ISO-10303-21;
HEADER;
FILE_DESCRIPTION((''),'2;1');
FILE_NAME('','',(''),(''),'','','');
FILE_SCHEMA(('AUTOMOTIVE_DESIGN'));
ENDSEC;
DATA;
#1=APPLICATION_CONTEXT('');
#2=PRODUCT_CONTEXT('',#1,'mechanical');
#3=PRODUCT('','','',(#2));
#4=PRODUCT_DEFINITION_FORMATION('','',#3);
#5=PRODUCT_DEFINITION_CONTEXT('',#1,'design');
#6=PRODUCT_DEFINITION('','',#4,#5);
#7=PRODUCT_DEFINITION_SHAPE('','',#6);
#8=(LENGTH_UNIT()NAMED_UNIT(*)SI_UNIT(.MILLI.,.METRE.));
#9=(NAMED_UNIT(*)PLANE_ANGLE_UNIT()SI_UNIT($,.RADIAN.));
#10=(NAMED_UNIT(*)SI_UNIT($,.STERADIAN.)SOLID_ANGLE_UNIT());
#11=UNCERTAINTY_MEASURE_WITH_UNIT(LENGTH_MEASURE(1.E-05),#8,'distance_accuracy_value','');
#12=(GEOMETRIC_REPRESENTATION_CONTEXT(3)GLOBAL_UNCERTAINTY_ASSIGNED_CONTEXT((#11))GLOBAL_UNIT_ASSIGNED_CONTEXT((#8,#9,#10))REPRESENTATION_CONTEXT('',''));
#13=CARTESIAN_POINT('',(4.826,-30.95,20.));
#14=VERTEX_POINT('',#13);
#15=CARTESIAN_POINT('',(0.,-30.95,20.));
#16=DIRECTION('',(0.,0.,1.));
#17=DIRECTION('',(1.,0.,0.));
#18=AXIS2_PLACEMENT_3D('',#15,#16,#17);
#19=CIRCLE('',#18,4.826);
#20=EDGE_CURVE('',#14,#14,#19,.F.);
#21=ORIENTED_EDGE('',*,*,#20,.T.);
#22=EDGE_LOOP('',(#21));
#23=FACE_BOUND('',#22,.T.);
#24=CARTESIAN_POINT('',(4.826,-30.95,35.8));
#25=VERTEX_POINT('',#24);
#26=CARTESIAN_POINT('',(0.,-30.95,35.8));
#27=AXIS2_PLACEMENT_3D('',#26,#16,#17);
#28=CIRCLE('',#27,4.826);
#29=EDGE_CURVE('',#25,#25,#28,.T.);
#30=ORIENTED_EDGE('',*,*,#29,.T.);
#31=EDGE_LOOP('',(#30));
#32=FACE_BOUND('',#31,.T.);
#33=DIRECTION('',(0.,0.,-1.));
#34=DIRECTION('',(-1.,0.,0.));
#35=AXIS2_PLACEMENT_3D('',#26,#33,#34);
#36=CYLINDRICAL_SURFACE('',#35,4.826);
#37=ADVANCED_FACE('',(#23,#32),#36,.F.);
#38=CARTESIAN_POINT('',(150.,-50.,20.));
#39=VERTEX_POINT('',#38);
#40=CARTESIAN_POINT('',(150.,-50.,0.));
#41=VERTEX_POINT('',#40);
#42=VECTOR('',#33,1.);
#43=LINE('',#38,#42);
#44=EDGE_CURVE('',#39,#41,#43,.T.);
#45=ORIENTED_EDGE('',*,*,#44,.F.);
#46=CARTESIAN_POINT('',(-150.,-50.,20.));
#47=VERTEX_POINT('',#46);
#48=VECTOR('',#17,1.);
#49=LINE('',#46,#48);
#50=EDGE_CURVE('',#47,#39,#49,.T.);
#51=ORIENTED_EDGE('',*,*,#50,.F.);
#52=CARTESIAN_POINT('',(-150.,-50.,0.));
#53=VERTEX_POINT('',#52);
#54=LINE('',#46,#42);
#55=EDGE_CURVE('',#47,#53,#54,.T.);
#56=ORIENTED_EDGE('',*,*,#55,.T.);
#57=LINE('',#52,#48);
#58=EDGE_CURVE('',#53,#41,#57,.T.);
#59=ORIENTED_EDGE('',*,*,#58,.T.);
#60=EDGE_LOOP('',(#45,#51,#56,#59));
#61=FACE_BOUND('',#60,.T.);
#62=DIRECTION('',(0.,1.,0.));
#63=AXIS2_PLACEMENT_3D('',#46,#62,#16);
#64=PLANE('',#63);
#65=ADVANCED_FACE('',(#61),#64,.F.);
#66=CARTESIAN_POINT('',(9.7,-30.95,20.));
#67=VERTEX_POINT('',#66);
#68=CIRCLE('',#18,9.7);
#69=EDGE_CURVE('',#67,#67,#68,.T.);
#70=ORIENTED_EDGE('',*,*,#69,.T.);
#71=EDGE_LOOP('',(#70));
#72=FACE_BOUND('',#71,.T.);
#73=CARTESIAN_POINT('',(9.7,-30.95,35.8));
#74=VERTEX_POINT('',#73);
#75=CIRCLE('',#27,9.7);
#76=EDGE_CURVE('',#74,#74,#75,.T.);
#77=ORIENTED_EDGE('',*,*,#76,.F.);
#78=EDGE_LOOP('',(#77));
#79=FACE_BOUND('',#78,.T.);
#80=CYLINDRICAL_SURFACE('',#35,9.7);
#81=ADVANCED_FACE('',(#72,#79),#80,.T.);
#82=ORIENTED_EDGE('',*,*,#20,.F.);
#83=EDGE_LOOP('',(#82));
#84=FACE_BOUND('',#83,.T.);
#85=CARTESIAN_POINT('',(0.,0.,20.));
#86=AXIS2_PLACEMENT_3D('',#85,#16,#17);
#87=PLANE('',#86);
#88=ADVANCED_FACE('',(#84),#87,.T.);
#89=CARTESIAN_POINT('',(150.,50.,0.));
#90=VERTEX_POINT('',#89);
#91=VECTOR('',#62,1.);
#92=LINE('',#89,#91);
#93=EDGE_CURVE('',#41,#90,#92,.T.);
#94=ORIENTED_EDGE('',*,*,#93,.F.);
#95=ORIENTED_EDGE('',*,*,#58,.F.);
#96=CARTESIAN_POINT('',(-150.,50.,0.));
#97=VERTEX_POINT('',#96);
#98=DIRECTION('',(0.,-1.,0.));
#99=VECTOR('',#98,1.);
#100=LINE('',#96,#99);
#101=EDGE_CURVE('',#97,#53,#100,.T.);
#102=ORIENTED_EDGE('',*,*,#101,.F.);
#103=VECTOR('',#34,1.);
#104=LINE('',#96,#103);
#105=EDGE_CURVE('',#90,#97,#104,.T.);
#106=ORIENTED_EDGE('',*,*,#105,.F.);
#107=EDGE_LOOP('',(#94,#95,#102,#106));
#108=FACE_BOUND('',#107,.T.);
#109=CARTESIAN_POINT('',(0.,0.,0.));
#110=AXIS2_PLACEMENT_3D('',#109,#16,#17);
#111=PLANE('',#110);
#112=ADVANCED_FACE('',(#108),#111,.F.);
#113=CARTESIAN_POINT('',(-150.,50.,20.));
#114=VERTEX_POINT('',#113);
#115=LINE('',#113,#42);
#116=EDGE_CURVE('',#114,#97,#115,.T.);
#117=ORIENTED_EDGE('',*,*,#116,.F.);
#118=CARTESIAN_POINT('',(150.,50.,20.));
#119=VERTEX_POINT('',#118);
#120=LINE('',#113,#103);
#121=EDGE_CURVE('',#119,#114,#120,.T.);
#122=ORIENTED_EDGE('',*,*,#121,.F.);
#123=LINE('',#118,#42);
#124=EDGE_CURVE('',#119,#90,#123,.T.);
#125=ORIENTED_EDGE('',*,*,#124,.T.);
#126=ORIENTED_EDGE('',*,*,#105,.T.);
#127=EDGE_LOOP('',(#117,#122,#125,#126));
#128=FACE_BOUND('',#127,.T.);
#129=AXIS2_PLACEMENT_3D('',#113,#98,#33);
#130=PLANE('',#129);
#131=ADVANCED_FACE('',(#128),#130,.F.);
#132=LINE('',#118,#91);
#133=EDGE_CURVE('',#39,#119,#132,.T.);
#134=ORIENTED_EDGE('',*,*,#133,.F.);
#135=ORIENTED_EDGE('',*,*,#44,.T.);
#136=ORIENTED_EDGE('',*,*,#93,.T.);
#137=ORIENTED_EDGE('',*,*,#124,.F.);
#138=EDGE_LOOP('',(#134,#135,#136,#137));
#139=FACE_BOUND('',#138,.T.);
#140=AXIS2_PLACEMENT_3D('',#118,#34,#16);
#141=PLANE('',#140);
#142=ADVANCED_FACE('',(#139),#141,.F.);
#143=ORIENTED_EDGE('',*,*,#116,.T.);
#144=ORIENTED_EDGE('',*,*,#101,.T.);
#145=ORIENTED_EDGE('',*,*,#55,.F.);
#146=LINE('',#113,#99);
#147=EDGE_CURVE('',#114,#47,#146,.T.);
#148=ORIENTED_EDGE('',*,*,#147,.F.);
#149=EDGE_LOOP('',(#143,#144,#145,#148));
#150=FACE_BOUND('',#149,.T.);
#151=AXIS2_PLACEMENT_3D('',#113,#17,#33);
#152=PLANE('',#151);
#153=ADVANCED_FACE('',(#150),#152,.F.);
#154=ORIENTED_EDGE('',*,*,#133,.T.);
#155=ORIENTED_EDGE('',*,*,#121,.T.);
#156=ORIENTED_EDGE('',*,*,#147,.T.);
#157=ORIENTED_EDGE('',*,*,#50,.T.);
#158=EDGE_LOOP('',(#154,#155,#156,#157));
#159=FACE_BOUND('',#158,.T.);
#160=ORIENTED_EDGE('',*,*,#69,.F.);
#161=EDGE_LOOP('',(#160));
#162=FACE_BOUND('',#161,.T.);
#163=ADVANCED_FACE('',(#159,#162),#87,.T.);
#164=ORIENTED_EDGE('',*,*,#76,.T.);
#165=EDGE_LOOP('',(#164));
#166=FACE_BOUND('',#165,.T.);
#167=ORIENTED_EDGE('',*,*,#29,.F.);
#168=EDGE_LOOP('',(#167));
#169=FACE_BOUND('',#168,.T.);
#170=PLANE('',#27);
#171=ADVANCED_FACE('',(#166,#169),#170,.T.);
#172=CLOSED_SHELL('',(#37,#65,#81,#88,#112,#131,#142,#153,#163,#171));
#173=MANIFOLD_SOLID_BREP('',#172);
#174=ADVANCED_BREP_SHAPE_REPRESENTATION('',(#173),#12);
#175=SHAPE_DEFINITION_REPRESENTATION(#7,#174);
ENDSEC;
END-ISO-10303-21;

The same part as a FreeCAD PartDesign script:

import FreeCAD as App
import Part
import Sketcher

V = App.Vector

doc = App.newDocument("Part")
body = doc.addObject("PartDesign::Body", "Body")

sketch1 = doc.addObject("Sketcher::SketchObject", "Sketch")
body.addObject(sketch1)
sketch1.AttachmentSupport = (doc.XY_Plane, [""])
sketch1.MapMode = "FlatFace"
sketch1.addGeometry([
    Part.LineSegment(V(-150, 50, 0), V(-150, -50, 0)),
    Part.LineSegment(V(-150, -50, 0), V(150, -50, 0)),
    Part.LineSegment(V(150, -50, 0), V(150, 50, 0)),
    Part.LineSegment(V(150, 50, 0), V(-150, 50, 0)),
], False)
sketch1.addConstraint([
    Sketcher.Constraint("Coincident", 0, 2, 1, 1),
    Sketcher.Constraint("Coincident", 1, 2, 2, 1),
    Sketcher.Constraint("Coincident", 2, 2, 3, 1),
    Sketcher.Constraint("Coincident", 3, 2, 0, 1),
    Sketcher.Constraint("Vertical", 0),
    Sketcher.Constraint("Horizontal", 1),
    Sketcher.Constraint("Vertical", 2),
    Sketcher.Constraint("Horizontal", 3),
    Sketcher.Constraint("Symmetric", 0, 2, 2, 2, -1, 1),
    Sketcher.Constraint("DistanceX", 1, 1, 1, 2, 300.0),
    Sketcher.Constraint("DistanceY", 0, 2, 0, 1, 100.0),
])
pad1 = doc.addObject("PartDesign::Pad", "Pad")
body.addObject(pad1)
pad1.Profile = sketch1
pad1.Length = 20

sketch2 = doc.addObject("Sketcher::SketchObject", "Sketch001")
body.addObject(sketch2)
sketch2.AttachmentSupport = (doc.XY_Plane, [""])
sketch2.MapMode = "FlatFace"
sketch2.AttachmentOffset = App.Placement(V(0, 0, 20), App.Rotation())
sketch2.addGeometry([
    Part.Circle(V(0, -30.95, 0), V(0, 0, 1), 9.7),
    Part.Circle(V(0, -30.95, 0), V(0, 0, 1), 4.826),
], False)
sketch2.addConstraint([
    Sketcher.Constraint("Coincident", 1, 3, 0, 3),
    Sketcher.Constraint("PointOnObject", 0, 3, -2),
    Sketcher.Constraint("Diameter", 0, 19.4),
    Sketcher.Constraint("Diameter", 1, 9.652),
    Sketcher.Constraint("DistanceY", 0, 3, -1, 1, 30.95),
])
pad2 = doc.addObject("PartDesign::Pad", "Pad001")
body.addObject(pad2)
pad2.Profile = sketch2
pad2.Length = 15.8

doc.recompute()
